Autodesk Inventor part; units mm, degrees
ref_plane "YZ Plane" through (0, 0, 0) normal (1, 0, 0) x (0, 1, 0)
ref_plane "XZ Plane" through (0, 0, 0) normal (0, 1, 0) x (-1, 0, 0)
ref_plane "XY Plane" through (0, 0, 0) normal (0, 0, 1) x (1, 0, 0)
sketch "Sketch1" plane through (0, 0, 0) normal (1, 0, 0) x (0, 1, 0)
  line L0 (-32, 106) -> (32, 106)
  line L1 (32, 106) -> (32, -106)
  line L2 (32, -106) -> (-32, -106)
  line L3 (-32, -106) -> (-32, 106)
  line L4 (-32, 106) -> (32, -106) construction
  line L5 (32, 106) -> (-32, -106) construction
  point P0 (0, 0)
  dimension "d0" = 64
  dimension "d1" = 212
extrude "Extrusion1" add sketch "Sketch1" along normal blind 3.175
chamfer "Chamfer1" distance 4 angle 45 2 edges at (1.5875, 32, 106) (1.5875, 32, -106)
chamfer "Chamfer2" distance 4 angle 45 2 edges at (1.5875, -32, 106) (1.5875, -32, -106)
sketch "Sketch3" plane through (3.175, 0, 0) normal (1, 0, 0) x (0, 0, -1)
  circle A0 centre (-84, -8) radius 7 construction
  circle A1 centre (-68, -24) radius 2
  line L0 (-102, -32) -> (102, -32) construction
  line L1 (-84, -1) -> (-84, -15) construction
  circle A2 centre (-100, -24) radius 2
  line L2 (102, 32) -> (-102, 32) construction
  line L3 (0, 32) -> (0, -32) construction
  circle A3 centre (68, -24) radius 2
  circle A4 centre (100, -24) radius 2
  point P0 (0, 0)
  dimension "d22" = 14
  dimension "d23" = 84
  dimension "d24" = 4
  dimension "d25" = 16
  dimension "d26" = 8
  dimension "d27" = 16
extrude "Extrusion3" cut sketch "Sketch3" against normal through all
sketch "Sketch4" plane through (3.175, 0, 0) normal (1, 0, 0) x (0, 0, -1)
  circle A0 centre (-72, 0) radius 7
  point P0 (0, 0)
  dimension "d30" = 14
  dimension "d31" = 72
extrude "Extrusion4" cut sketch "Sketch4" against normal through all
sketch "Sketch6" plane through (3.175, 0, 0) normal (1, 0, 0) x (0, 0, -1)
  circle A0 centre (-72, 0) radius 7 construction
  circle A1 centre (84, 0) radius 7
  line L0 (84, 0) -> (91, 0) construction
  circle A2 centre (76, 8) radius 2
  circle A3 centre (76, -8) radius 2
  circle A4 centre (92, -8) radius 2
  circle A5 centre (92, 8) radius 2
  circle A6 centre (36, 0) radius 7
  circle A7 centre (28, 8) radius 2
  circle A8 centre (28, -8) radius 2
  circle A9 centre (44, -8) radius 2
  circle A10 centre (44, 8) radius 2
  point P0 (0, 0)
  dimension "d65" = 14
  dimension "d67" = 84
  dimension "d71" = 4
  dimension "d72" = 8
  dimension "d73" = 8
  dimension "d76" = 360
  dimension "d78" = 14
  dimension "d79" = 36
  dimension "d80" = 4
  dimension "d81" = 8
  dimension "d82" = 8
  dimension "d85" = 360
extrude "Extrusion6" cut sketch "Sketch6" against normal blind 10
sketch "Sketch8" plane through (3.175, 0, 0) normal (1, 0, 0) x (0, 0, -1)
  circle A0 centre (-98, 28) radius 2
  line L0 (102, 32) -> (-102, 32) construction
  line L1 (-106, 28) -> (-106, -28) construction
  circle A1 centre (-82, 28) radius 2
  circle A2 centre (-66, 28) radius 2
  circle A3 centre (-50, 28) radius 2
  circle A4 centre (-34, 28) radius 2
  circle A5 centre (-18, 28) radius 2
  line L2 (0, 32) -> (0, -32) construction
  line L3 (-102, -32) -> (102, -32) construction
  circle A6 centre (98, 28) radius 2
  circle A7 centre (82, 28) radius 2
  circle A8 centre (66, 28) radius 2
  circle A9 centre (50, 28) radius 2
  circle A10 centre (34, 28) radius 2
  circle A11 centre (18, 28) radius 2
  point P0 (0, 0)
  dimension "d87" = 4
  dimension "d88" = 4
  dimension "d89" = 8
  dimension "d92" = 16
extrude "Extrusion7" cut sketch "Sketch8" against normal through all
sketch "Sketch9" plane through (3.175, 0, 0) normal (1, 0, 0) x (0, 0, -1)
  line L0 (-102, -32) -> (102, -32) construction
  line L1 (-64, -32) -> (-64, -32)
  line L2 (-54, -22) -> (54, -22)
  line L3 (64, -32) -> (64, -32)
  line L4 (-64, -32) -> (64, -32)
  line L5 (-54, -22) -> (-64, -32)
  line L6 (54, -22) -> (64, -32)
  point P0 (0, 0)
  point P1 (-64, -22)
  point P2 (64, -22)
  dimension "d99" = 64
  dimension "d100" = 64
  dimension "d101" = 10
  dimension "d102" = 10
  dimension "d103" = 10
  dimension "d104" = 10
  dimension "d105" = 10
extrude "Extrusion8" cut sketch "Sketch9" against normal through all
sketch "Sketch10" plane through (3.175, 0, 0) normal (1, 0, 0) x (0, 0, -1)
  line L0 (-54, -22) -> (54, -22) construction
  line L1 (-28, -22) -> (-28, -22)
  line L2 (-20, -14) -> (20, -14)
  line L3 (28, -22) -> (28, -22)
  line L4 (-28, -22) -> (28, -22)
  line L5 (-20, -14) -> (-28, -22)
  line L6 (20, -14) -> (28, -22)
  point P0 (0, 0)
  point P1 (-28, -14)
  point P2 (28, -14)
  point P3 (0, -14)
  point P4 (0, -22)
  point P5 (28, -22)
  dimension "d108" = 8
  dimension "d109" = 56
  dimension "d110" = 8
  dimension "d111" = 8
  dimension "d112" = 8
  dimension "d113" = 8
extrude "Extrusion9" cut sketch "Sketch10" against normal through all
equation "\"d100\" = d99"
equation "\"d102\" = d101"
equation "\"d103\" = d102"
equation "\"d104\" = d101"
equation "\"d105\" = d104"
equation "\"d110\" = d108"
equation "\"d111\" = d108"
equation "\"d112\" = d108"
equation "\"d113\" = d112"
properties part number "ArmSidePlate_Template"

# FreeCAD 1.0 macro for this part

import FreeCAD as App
import Part
import Sketcher

V = App.Vector
Q = App.Units.Quantity


def edges_at(feature, points):
    """Names of the edges that pass closest to the given points."""
    edges = feature.Shape.Edges
    near = lambda p: min(range(len(edges)), key=lambda i: edges[i].distToShape(Part.Vertex(*p))[0])
    return sorted({f"Edge{near(p) + 1}" for p in points})

doc = App.newDocument("Part")
body = doc.addObject("PartDesign::Body", "Body")

sketch1 = doc.addObject("Sketcher::SketchObject", "Sketch")
body.addObject(sketch1)
sketch1.AttachmentSupport = (doc.YZ_Plane, [""])
sketch1.MapMode = "FlatFace"
sketch1.addGeometry([
    Part.LineSegment(V(32, 106, 0), V(-32, 106, 0)),
    Part.LineSegment(V(-32, 106, 0), V(-32, -106, 0)),
    Part.LineSegment(V(-32, -106, 0), V(32, -106, 0)),
    Part.LineSegment(V(32, -106, 0), V(32, 106, 0)),
], False)
sketch1.addConstraint([
    Sketcher.Constraint("Coincident", 0, 2, 1, 1),
    Sketcher.Constraint("Coincident", 1, 2, 2, 1),
    Sketcher.Constraint("Coincident", 2, 2, 3, 1),
    Sketcher.Constraint("Coincident", 3, 2, 0, 1),
    Sketcher.Constraint("Horizontal", 0),
    Sketcher.Constraint("Vertical", 1),
    Sketcher.Constraint("Horizontal", 2),
    Sketcher.Constraint("Vertical", 3),
    Sketcher.Constraint("Symmetric", 0, 2, 2, 2, -1, 1),
    Sketcher.Constraint("DistanceX", 0, 2, 0, 1, Q("64 mm")),
    Sketcher.Constraint("DistanceY", 1, 2, 1, 1, Q("212 mm")),
])
pad1 = doc.addObject("PartDesign::Pad", "Pad")
body.addObject(pad1)
pad1.Profile = sketch1
pad1.Length = 3.175
doc.recompute()

chamfer = doc.addObject("PartDesign::Chamfer", "Chamfer")
body.addObject(chamfer)
chamfer.Base = (pad1, edges_at(pad1, [(1.587, 32, 106), (1.587, 32, -106)]))
chamfer.Size = 4
doc.recompute()

chamfer2 = doc.addObject("PartDesign::Chamfer", "Chamfer001")
body.addObject(chamfer2)
chamfer2.Base = (chamfer, edges_at(chamfer, [(1.587, -32, 106), (1.587, -32, -106)]))
chamfer2.Size = 4

sketch2 = doc.addObject("Sketcher::SketchObject", "Sketch001")
body.addObject(sketch2)
sketch2.AttachmentSupport = (doc.YZ_Plane, [""])
sketch2.MapMode = "FlatFace"
sketch2.AttachmentOffset = App.Placement(V(0, 0, 3.175), App.Rotation())
sketch2.addGeometry([
    Part.Circle(V(-24, 68, 0), V(0, 0, 1), 2),
    Part.Circle(V(-24, 100, 0), V(0, 0, 1), 2),
    Part.Circle(V(-24, -68, 0), V(0, 0, 1), 2),
    Part.Circle(V(-24, -100, 0), V(0, 0, 1), 2),
], False)
sketch2.addConstraint([
    Sketcher.Constraint("Equal", 0, 1),
    Sketcher.Constraint("Equal", 1, 2),
    Sketcher.Constraint("Equal", 2, 3),
    Sketcher.Constraint("Symmetric", 0, 3, 2, 3, -1),
    Sketcher.Constraint("Symmetric", 1, 3, 3, 3, -1),
    Sketcher.Constraint("Vertical", 0, 3, 1, 3),
    Sketcher.Constraint("Diameter", 0, Q("4 mm")),
    Sketcher.Constraint("DistanceX", 0, 3, -1, 1, Q("24 mm")),
    Sketcher.Constraint("DistanceY", -1, 1, 0, 3, Q("68 mm")),
    Sketcher.Constraint("DistanceY", -1, 1, 1, 3, Q("100 mm")),
])
pocket1 = doc.addObject("PartDesign::Pocket", "Pocket")
body.addObject(pocket1)
pocket1.Profile = sketch2
pocket1.Type = "ThroughAll"

sketch3 = doc.addObject("Sketcher::SketchObject", "Sketch002")
body.addObject(sketch3)
sketch3.AttachmentSupport = (doc.YZ_Plane, [""])
sketch3.MapMode = "FlatFace"
sketch3.AttachmentOffset = App.Placement(V(0, 0, 3.175), App.Rotation())
sketch3.addGeometry(Part.Circle(V(0, 72, 0), V(0, 0, 1), 7), False)
sketch3.addConstraint([
    Sketcher.Constraint("PointOnObject", 0, 3, -2),
    Sketcher.Constraint("Diameter", 0, Q("14 mm")),
    Sketcher.Constraint("DistanceY", -1, 1, 0, 3, Q("72 mm")),
])
pocket2 = doc.addObject("PartDesign::Pocket", "Pocket001")
body.addObject(pocket2)
pocket2.Profile = sketch3
pocket2.Type = "ThroughAll"

sketch4 = doc.addObject("Sketcher::SketchObject", "Sketch003")
body.addObject(sketch4)
sketch4.AttachmentSupport = (doc.YZ_Plane, [""])
sketch4.MapMode = "FlatFace"
sketch4.AttachmentOffset = App.Placement(V(0, 0, 3.175), App.Rotation())
sketch4.addGeometry([
    Part.Circle(V(0, -84, 0), V(0, 0, 1), 7),
    Part.Circle(V(8, -76, 0), V(0, 0, 1), 2),
    Part.Circle(V(-8, -76, 0), V(0, 0, 1), 2),
    Part.Circle(V(-8, -92, 0), V(0, 0, 1), 2),
    Part.Circle(V(8, -92, 0), V(0, 0, 1), 2),
    Part.Circle(V(0, -36, 0), V(0, 0, 1), 7),
    Part.Circle(V(8, -28, 0), V(0, 0, 1), 2),
    Part.Circle(V(-8, -28, 0), V(0, 0, 1), 2),
    Part.Circle(V(-8, -44, 0), V(0, 0, 1), 2),
    Part.Circle(V(8, -44, 0), V(0, 0, 1), 2),
], False)
sketch4.addConstraint([
    Sketcher.Constraint("Equal", 1, 2),
    Sketcher.Constraint("Equal", 2, 3),
    Sketcher.Constraint("Equal", 3, 4),
    Sketcher.Constraint("Equal", 0, 5),
    Sketcher.Constraint("Equal", 4, 6),
    Sketcher.Constraint("Equal", 6, 7),
    Sketcher.Constraint("Equal", 7, 8),
    Sketcher.Constraint("Equal", 8, 9),
    Sketcher.Constraint("Symmetric", 1, 3, 2, 3, -2),
    Sketcher.Constraint("Symmetric", 3, 3, 4, 3, -2),
    Sketcher.Constraint("Symmetric", 6, 3, 7, 3, -2),
    Sketcher.Constraint("Symmetric", 8, 3, 9, 3, -2),
    Sketcher.Constraint("PointOnObject", 0, 3, -2),
    Sketcher.Constraint("PointOnObject", 5, 3, -2),
    Sketcher.Constraint("Vertical", 2, 3, 3, 3),
    Sketcher.Constraint("Vertical", 4, 3, 6, 3),
    Sketcher.Constraint("Vertical", 7, 3, 8, 3),
    Sketcher.Constraint("Diameter", 0, Q("14 mm")),
    Sketcher.Constraint("Diameter", 1, Q("4 mm")),
    Sketcher.Constraint("DistanceY", 0, 3, -1, 1, Q("84 mm")),
    Sketcher.Constraint("DistanceX", -1, 1, 1, 3, Q("8 mm")),
    Sketcher.Constraint("DistanceY", 5, 3, -1, 1, Q("36 mm")),
    Sketcher.Constraint("DistanceY", 0, 3, 1, 3, Q("8 mm")),
    Sketcher.Constraint("DistanceY", 3, 3, 0, 3, Q("8 mm")),
    Sketcher.Constraint("DistanceY", 5, 3, 6, 3, Q("8 mm")),
    Sketcher.Constraint("DistanceY", 8, 3, 5, 3, Q("8 mm")),
])
pocket3 = doc.addObject("PartDesign::Pocket", "Pocket002")
body.addObject(pocket3)
pocket3.Profile = sketch4
pocket3.Length = 10

sketch5 = doc.addObject("Sketcher::SketchObject", "Sketch004")
body.addObject(sketch5)
sketch5.AttachmentSupport = (doc.YZ_Plane, [""])
sketch5.MapMode = "FlatFace"
sketch5.AttachmentOffset = App.Placement(V(0, 0, 3.175), App.Rotation())
sketch5.addGeometry([
    Part.Circle(V(28, 98, 0), V(0, 0, 1), 2),
    Part.Circle(V(28, 82, 0), V(0, 0, 1), 2),
    Part.Circle(V(28, 66, 0), V(0, 0, 1), 2),
    Part.Circle(V(28, 50, 0), V(0, 0, 1), 2),
    Part.Circle(V(28, 34, 0), V(0, 0, 1), 2),
    Part.Circle(V(28, 18, 0), V(0, 0, 1), 2),
    Part.Circle(V(28, -98, 0), V(0, 0, 1), 2),
    Part.Circle(V(28, -82, 0), V(0, 0, 1), 2),
    Part.Circle(V(28, -66, 0), V(0, 0, 1), 2),
    Part.Circle(V(28, -50, 0), V(0, 0, 1), 2),
    Part.Circle(V(28, -34, 0), V(0, 0, 1), 2),
    Part.Circle(V(28, -18, 0), V(0, 0, 1), 2),
], False)
sketch5.addConstraint([
    Sketcher.Constraint("Equal", 0, 1),
    Sketcher.Constraint("Equal", 1, 2),
    Sketcher.Constraint("Equal", 2, 3),
    Sketcher.Constraint("Equal", 3, 4),
    Sketcher.Constraint("Equal", 4, 5),
    Sketcher.Constraint("Equal", 5, 6),
    Sketcher.Constraint("Equal", 6, 7),
    Sketcher.Constraint("Equal", 7, 8),
    Sketcher.Constraint("Equal", 8, 9),
    Sketcher.Constraint("Equal", 9, 10),
    Sketcher.Constraint("Equal", 10, 11),
    Sketcher.Constraint("Symmetric", 0, 3, 6, 3, -1),
    Sketcher.Constraint("Symmetric", 1, 3, 7, 3, -1),
    Sketcher.Constraint("Symmetric", 2, 3, 8, 3, -1),
    Sketcher.Constraint("Symmetric", 3, 3, 9, 3, -1),
    Sketcher.Constraint("Symmetric", 4, 3, 10, 3, -1),
    Sketcher.Constraint("Symmetric", 5, 3, 11, 3, -1),
    Sketcher.Constraint("Vertical", 0, 3, 1, 3),
    Sketcher.Constraint("Vertical", 1, 3, 2, 3),
    Sketcher.Constraint("Vertical", 2, 3, 3, 3),
    Sketcher.Constraint("Vertical", 3, 3, 4, 3),
    Sketcher.Constraint("Vertical", 4, 3, 5, 3),
    Sketcher.Constraint("Diameter", 0, Q("4 mm")),
    Sketcher.Constraint("DistanceY", 1, 3, 0, 3, Q("16 mm")),
    Sketcher.Constraint("DistanceY", 2, 3, 1, 3, Q("16 mm")),
    Sketcher.Constraint("DistanceY", 3, 3, 2, 3, Q("16 mm")),
    Sketcher.Constraint("DistanceY", 4, 3, 3, 3, Q("16 mm")),
    Sketcher.Constraint("DistanceY", 5, 3, 4, 3, Q("16 mm")),
    Sketcher.Constraint("DistanceX", -1, 1, 0, 3, Q("28 mm")),
    Sketcher.Constraint("DistanceY", -1, 1, 0, 3, Q("98 mm")),
])
pocket4 = doc.addObject("PartDesign::Pocket", "Pocket003")
body.addObject(pocket4)
pocket4.Profile = sketch5
pocket4.Type = "ThroughAll"

sketch6 = doc.addObject("Sketcher::SketchObject", "Sketch005")
body.addObject(sketch6)
sketch6.AttachmentSupport = (doc.YZ_Plane, [""])
sketch6.MapMode = "FlatFace"
sketch6.AttachmentOffset = App.Placement(V(0, 0, 3.175), App.Rotation())
sketch6.addGeometry([
    Part.LineSegment(V(-22, -54, 0), V(-22, 54, 0)),
    Part.LineSegment(V(-22, 54, 0), V(-32, 64, 0)),
    Part.LineSegment(V(-32, 64, 0), V(-32, -64, 0)),
    Part.LineSegment(V(-32, -64, 0), V(-22, -54, 0)),
], False)
sketch6.addConstraint([
    Sketcher.Constraint("Coincident", 0, 2, 1, 1),
    Sketcher.Constraint("Coincident", 1, 2, 2, 1),
    Sketcher.Constraint("Coincident", 2, 2, 3, 1),
    Sketcher.Constraint("Coincident", 3, 2, 0, 1),
    Sketcher.Constraint("Vertical", 0),
    Sketcher.Constraint("Vertical", 2),
    Sketcher.Constraint("Perpendicular", 1, 3),
    Sketcher.Constraint("Equal", 1, 3),
    Sketcher.Constraint("DistanceY", -1, 1, 1, 2, Q("64 mm")),
    Sketcher.Constraint("DistanceY", 2, 2, -1, 1, Q("64 mm")),
    Sketcher.Constraint("DistanceX", 1, 2, 0, 2, Q("10 mm")),
    Sketcher.Constraint("DistanceX", 0, 2, -1, 1, Q("22 mm")),
])
pocket5 = doc.addObject("PartDesign::Pocket", "Pocket004")
body.addObject(pocket5)
pocket5.Profile = sketch6
pocket5.Type = "ThroughAll"

sketch7 = doc.addObject("Sketcher::SketchObject", "Sketch006")
body.addObject(sketch7)
sketch7.AttachmentSupport = (doc.YZ_Plane, [""])
sketch7.MapMode = "FlatFace"
sketch7.AttachmentOffset = App.Placement(V(0, 0, 3.175), App.Rotation())
sketch7.addGeometry([
    Part.LineSegment(V(-14, -20, 0), V(-14, 20, 0)),
    Part.LineSegment(V(-14, 20, 0), V(-22, 28, 0)),
    Part.LineSegment(V(-22, 28, 0), V(-22, -28, 0)),
    Part.LineSegment(V(-22, -28, 0), V(-14, -20, 0)),
], False)
sketch7.addConstraint([
    Sketcher.Constraint("Coincident", 0, 2, 1, 1),
    Sketcher.Constraint("Coincident", 1, 2, 2, 1),
    Sketcher.Constraint("Coincident", 2, 2, 3, 1),
    Sketcher.Constraint("Coincident", 3, 2, 0, 1),
    Sketcher.Constraint("Vertical", 0),
    Sketcher.Constraint("Vertical", 2),
    Sketcher.Constraint("Perpendicular", 1, 3),
    Sketcher.Constraint("Equal", 1, 3),
    Sketcher.Constraint("DistanceY", 2, 2, 2, 1, Q("56 mm")),
    Sketcher.Constraint("DistanceX", 1, 2, 0, 2, Q("8 mm")),
    Sketcher.Constraint("DistanceX", 0, 2, -1, 1, Q("14 mm")),
    Sketcher.Constraint("DistanceY", -1, 1, 0, 2, Q("20 mm")),
])
pocket6 = doc.addObject("PartDesign::Pocket", "Pocket005")
body.addObject(pocket6)
pocket6.Profile = sketch7
pocket6.Type = "ThroughAll"

doc.recompute()
